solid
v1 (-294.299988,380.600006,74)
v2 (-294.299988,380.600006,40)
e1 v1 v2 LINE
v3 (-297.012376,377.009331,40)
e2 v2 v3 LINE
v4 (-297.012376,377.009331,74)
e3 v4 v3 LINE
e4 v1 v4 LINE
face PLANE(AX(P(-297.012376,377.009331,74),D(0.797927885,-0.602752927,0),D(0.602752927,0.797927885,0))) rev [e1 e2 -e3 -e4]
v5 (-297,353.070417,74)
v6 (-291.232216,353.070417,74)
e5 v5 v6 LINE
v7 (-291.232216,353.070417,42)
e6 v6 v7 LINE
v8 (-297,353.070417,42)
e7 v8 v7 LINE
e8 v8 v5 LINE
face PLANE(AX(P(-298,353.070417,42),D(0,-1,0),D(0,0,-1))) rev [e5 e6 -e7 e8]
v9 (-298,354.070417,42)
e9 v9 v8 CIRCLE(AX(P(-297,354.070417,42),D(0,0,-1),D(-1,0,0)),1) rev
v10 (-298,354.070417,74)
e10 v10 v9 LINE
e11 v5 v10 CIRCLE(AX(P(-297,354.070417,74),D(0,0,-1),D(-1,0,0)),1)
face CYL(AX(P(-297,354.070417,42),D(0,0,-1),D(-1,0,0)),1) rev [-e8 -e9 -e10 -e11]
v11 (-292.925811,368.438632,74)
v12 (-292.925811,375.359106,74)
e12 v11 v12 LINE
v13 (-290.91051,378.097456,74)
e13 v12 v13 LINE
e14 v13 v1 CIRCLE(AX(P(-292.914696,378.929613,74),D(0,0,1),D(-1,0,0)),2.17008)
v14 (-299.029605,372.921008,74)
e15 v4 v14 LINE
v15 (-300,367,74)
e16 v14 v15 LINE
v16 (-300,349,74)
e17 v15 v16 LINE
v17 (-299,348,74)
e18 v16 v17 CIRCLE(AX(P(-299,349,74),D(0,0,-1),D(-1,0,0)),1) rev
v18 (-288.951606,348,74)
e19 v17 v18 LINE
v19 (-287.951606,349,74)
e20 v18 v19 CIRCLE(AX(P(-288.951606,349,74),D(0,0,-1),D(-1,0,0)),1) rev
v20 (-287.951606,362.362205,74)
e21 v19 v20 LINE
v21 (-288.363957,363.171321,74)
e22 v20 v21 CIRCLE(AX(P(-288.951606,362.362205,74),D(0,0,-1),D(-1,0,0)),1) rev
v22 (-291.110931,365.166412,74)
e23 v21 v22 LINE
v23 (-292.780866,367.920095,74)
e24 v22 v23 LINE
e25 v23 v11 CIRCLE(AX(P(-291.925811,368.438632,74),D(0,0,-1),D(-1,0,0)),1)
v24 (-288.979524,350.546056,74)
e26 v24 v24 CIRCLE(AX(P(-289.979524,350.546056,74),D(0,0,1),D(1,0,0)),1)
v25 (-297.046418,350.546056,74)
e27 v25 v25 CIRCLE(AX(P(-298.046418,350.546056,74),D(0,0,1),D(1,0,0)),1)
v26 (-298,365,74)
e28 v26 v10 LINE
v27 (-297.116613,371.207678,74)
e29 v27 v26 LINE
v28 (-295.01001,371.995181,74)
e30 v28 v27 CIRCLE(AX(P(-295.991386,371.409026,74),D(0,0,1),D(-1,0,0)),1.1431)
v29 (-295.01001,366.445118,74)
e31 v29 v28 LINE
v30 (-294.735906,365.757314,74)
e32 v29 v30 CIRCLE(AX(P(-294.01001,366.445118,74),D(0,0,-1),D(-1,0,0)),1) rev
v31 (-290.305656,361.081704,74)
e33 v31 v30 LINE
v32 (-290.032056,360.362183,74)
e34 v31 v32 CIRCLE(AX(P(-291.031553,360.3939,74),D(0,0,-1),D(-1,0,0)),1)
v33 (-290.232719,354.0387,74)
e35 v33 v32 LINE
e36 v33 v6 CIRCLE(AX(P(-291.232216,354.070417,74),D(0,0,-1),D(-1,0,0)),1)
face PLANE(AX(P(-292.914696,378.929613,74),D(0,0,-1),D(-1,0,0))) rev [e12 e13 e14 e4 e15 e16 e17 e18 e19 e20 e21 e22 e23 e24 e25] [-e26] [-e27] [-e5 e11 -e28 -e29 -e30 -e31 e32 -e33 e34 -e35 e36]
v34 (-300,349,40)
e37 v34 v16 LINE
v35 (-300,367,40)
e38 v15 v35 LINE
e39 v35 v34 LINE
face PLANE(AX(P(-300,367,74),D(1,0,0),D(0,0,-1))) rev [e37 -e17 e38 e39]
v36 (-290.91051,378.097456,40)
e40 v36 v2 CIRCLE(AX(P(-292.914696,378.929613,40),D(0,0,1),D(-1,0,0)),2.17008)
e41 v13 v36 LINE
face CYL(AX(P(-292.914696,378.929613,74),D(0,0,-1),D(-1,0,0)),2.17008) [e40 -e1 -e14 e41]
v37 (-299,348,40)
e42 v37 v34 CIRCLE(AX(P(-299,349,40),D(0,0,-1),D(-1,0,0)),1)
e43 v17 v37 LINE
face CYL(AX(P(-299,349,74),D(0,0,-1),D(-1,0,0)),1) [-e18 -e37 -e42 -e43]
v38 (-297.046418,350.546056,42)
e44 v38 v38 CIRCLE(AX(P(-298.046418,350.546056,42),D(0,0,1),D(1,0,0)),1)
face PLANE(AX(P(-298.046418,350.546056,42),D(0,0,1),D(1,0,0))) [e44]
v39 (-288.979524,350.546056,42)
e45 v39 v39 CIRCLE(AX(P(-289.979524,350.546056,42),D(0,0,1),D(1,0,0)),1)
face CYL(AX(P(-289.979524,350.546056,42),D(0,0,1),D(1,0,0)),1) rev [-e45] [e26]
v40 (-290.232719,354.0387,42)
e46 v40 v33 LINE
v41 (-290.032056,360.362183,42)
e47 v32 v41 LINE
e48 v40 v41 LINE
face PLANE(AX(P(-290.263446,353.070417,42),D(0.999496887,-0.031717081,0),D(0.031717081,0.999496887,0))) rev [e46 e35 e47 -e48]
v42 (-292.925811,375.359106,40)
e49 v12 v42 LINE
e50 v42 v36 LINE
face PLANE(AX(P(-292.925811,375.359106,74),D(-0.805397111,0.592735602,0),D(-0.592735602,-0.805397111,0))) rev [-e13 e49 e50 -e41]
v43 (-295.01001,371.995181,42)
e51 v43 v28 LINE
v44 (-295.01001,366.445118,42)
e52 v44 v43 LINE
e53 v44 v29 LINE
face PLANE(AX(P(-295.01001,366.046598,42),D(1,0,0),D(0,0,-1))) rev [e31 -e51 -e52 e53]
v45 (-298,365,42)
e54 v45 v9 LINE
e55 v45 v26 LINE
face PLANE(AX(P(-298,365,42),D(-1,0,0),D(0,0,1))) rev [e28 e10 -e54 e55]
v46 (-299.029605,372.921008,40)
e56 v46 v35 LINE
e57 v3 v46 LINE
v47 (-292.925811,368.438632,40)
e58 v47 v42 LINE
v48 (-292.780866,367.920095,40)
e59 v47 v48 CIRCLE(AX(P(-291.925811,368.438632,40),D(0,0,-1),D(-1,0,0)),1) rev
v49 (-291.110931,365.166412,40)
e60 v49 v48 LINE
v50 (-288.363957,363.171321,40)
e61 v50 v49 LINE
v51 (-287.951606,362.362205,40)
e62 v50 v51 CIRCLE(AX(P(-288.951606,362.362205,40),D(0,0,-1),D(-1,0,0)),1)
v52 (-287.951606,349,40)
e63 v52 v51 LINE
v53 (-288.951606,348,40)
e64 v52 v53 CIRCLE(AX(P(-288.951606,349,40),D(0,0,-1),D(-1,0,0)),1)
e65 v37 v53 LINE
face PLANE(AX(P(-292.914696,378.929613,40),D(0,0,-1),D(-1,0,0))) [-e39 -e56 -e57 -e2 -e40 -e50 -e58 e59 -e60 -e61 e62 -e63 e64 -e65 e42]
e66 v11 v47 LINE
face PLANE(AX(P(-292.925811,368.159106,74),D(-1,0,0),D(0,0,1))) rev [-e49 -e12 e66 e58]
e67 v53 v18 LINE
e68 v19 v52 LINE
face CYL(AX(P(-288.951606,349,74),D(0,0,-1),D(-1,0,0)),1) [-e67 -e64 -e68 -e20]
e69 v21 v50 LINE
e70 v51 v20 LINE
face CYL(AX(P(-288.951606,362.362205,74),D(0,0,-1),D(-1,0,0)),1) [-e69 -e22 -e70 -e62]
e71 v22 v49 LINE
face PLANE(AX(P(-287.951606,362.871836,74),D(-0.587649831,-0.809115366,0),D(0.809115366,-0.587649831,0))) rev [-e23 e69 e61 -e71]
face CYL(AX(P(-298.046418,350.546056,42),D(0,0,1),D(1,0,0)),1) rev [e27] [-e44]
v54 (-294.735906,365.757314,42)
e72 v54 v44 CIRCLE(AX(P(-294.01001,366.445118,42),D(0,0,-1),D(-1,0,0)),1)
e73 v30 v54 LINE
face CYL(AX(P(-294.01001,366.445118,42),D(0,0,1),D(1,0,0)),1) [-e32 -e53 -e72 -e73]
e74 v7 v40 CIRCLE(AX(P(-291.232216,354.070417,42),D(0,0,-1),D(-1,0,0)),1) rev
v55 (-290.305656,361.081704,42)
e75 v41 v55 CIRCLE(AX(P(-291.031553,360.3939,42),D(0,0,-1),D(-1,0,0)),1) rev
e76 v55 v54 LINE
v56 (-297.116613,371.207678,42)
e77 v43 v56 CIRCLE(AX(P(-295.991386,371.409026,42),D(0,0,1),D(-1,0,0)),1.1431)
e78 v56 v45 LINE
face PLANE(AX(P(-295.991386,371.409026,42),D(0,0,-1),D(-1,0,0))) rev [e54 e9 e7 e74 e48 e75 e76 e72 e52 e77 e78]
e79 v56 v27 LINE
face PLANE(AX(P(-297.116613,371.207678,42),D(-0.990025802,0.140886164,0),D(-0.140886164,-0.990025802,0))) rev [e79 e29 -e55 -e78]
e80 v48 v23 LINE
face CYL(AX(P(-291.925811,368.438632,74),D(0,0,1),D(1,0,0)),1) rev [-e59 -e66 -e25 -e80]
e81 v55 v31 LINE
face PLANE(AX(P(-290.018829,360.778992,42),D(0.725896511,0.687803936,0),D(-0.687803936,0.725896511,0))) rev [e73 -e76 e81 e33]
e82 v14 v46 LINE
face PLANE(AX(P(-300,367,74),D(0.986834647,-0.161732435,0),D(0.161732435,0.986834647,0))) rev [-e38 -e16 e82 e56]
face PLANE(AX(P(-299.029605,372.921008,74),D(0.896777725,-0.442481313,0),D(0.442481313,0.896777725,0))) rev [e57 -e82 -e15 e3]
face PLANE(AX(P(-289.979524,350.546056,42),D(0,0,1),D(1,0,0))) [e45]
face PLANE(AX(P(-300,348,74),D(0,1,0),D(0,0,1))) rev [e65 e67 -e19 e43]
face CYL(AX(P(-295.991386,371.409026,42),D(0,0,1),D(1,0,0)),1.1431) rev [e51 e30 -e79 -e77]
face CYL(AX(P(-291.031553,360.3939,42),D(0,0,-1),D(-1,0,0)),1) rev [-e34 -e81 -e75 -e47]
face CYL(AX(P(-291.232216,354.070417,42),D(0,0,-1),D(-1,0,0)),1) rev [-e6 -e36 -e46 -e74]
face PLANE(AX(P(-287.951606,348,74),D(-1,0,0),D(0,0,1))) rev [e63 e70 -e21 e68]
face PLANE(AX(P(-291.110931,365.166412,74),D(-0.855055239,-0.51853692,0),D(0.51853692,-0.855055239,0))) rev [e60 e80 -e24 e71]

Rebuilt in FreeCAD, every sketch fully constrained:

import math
import FreeCAD as App
import Part
import Sketcher
from FreeCAD import Vector


def edges_at(feature, points):
    """Names of the edges that pass closest to the given points."""
    edges = feature.Shape.Edges
    near = lambda p: min(range(len(edges)), key=lambda i: edges[i].distToShape(Part.Vertex(*p))[0])
    return sorted({f"Edge{near(p) + 1}" for p in points})

doc = App.newDocument("Part")
body = doc.addObject("PartDesign::Body", "Body")

sketch1 = body.newObject("Sketcher::SketchObject", "Sketch")
sketch1.AttachmentSupport = (doc.getObject("XY_Plane"), [""])
sketch1.MapMode = "FlatFace"
sketch1.AttachmentOffset = App.Placement(Vector(0, 0, 40), App.Rotation())
sketch1.addGeometry([
    Part.LineSegment(Vector(-300, 367, 0), Vector(-300, 348, 0)),
    Part.LineSegment(Vector(-300, 348, 0), Vector(-288, 348, 0)),
    Part.LineSegment(Vector(-288, 348, 0), Vector(-288, 362.9, 0)),
    Part.LineSegment(Vector(-288, 362.9, 0), Vector(-291.1, 365.2, 0)),
    Part.LineSegment(Vector(-291.1, 365.2, 0), Vector(-292.9, 368.2, 0)),
    Part.LineSegment(Vector(-292.9, 368.2, 0), Vector(-292.9, 375.4, 0)),
    Part.LineSegment(Vector(-292.9, 375.4, 0), Vector(-290.9, 378.1, 0)),
    Part.ArcOfCircle(Part.Circle(Vector(-292.9, 378.9, 0), Vector(0, 0, 1), 2.2), math.radians(-23), math.radians(130)),
    Part.LineSegment(Vector(-294.3, 380.6, 0), Vector(-297, 377, 0)),
    Part.LineSegment(Vector(-297, 377, 0), Vector(-299, 372.9, 0)),
    Part.LineSegment(Vector(-299, 372.9, 0), Vector(-300, 367, 0)),
], False)
sketch1.addConstraint([
    Sketcher.Constraint("Coincident", 0, 2, 1, 1),
    Sketcher.Constraint("Coincident", 1, 2, 2, 1),
    Sketcher.Constraint("Coincident", 2, 2, 3, 1),
    Sketcher.Constraint("Coincident", 3, 2, 4, 1),
    Sketcher.Constraint("Coincident", 4, 2, 5, 1),
    Sketcher.Constraint("Coincident", 5, 2, 6, 1),
    Sketcher.Constraint("Coincident", 6, 2, 7, 1),
    Sketcher.Constraint("Coincident", 7, 2, 8, 1),
    Sketcher.Constraint("Coincident", 8, 2, 9, 1),
    Sketcher.Constraint("Coincident", 9, 2, 10, 1),
    Sketcher.Constraint("Coincident", 10, 2, 0, 1),
    Sketcher.Constraint("Vertical", 0),
    Sketcher.Constraint("Horizontal", 1),
    Sketcher.Constraint("Vertical", 2),
    Sketcher.Constraint("Vertical", 5),
    Sketcher.Constraint("DistanceY", 0, 2, 0, 1, 19.0),
    Sketcher.Constraint("Distance", 10, 6.0),
    Sketcher.Constraint("DistanceY", 5, 1, 5, 2, 7.2),
    Sketcher.Constraint("DistanceX", 0, 2, -1, 1, 300.0),
    Sketcher.Constraint("DistanceY", -1, 1, 0, 2, 348.0),
    Sketcher.Constraint("Distance", 4, 3.5),
    Sketcher.Constraint("Distance", 6, 3.4),
    Sketcher.Constraint("Distance", 8, 4.5),
    Sketcher.Constraint("Radius", 7, 2.17008),
    Sketcher.Constraint("DistanceY", 9, 2, 7, 2, 7.678998),
    Sketcher.Constraint("DistanceY", 3, 2, 7, 3, 13.763201),
    Sketcher.Constraint("DistanceX", 5, 2, 6, 2, 2.015301),
    Sketcher.Constraint("DistanceY", 5, 2, 7, 2, 5.2409),
    Sketcher.Constraint("DistanceX", 1, 1, 1, 2, 12.048394),
    Sketcher.Constraint("DistanceY", 2, 1, 2, 2, 14.871836),
    Sketcher.Constraint("DistanceX", 3, 2, -1, 1, 291.110931),
    Sketcher.Constraint("DistanceX", 4, 2, -1, 1, 292.925811),
    Sketcher.Constraint("DistanceY", -1, 1, 8, 2, 377.009331),
    Sketcher.Constraint("DistanceY", 2, 2, 4, 2, 5.287269),
])
pad1 = body.newObject("PartDesign::Pad", "Pad")
pad1.Profile = sketch1
pad1.Length = 34

sketch2 = body.newObject("Sketcher::SketchObject", "Sketch001")
sketch2.AttachmentSupport = (doc.getObject("XY_Plane"), [""])
sketch2.MapMode = "FlatFace"
sketch2.AttachmentOffset = App.Placement(Vector(0, 0, 74), App.Rotation())
sketch2.addGeometry([
    Part.LineSegment(Vector(-297.1, 371.2, 0), Vector(-298, 365, 0)),
    Part.LineSegment(Vector(-298, 365, 0), Vector(-298, 353.1, 0)),
    Part.LineSegment(Vector(-298, 353.1, 0), Vector(-290.3, 353.1, 0)),
    Part.LineSegment(Vector(-290.3, 353.1, 0), Vector(-290, 360.8, 0)),
    Part.LineSegment(Vector(-290, 360.8, 0), Vector(-295, 366, 0)),
    Part.LineSegment(Vector(-295, 366, 0), Vector(-295, 372, 0)),
    Part.ArcOfCircle(Part.Circle(Vector(-296, 371.4, 0), Vector(0, 0, 1), 1.1), math.radians(31), math.radians(190)),
], False)
sketch2.addConstraint([
    Sketcher.Constraint("Coincident", 0, 2, 1, 1),
    Sketcher.Constraint("Coincident", 1, 2, 2, 1),
    Sketcher.Constraint("Coincident", 2, 2, 3, 1),
    Sketcher.Constraint("Coincident", 3, 2, 4, 1),
    Sketcher.Constraint("Coincident", 4, 2, 5, 1),
    Sketcher.Constraint("Coincident", 5, 2, 6, 1),
    Sketcher.Constraint("Coincident", 6, 2, 0, 1),
    Sketcher.Constraint("Vertical", 1),
    Sketcher.Constraint("Horizontal", 2),
    Sketcher.Constraint("Vertical", 5),
    Sketcher.Constraint("DistanceX", 0, 2, -1, 1, 298.0),
    Sketcher.Constraint("DistanceY", -1, 1, 0, 2, 365.0),
    Sketcher.Constraint("Radius", 6, 1.1431),
    Sketcher.Constraint("DistanceY", -1, 1, 4, 2, 366.046598),
    Sketcher.Constraint("Distance", 0, 6.270218),
    Sketcher.Constraint("Distance", 4, 7.256691),
    Sketcher.Constraint("DistanceX", 2, 1, 2, 2, 7.736554),
    Sketcher.Constraint("DistanceY", 1, 2, 1, 1, 11.929583),
    Sketcher.Constraint("DistanceY", 5, 1, 5, 2, 5.948583),
    Sketcher.Constraint("DistanceX", 3, 2, -1, 1, 290.018829),
    Sketcher.Constraint("DistanceY", -1, 1, 3, 2, 360.778992),
    Sketcher.Constraint("DistanceY", 1, 2, 6, 3, 18.338609),
])
pocket1 = body.newObject("PartDesign::Pocket", "Pocket")
pocket1.Profile = sketch2
pocket1.Length = 32

sketch3 = body.newObject("Sketcher::SketchObject", "Sketch002")
sketch3.AttachmentSupport = (doc.getObject("XY_Plane"), [""])
sketch3.MapMode = "FlatFace"
sketch3.AttachmentOffset = App.Placement(Vector(0, 0, 74), App.Rotation())
sketch3.addGeometry([
    Part.Circle(Vector(-298, 350.5, 0), Vector(0, 0, 1), 1),
    Part.Circle(Vector(-290, 350.5, 0), Vector(0, 0, 1), 1),
], False)
sketch3.addConstraint([
    Sketcher.Constraint("Equal", 0, 1),
    Sketcher.Constraint("Horizontal", 0, 3, 1, 3),
    Sketcher.Constraint("Diameter", 0, 2.0),
    Sketcher.Constraint("DistanceX", 0, 3, -1, 1, 298.046418),
    Sketcher.Constraint("DistanceY", -1, 1, 0, 3, 350.546056),
    Sketcher.Constraint("DistanceX", 1, 3, -1, 1, 289.979524),
])
pocket2 = body.newObject("PartDesign::Pocket", "Pocket001")
pocket2.Profile = sketch3
pocket2.Length = 32
doc.recompute()

fillet = body.newObject("PartDesign::Fillet", "Fillet")
fillet.Base = (pocket2, edges_at(pocket2, [
    (-292.926, 368.159, 57),
    (-287.952, 362.872, 57),
    (-287.952, 348, 57),
    (-300, 348, 57),
    (-295.01, 366.047, 58),
    (-290.019, 360.779, 58),
    (-290.263, 353.07, 58),
    (-298, 353.07, 58),
]))
fillet.Radius = 1

doc.recompute()
